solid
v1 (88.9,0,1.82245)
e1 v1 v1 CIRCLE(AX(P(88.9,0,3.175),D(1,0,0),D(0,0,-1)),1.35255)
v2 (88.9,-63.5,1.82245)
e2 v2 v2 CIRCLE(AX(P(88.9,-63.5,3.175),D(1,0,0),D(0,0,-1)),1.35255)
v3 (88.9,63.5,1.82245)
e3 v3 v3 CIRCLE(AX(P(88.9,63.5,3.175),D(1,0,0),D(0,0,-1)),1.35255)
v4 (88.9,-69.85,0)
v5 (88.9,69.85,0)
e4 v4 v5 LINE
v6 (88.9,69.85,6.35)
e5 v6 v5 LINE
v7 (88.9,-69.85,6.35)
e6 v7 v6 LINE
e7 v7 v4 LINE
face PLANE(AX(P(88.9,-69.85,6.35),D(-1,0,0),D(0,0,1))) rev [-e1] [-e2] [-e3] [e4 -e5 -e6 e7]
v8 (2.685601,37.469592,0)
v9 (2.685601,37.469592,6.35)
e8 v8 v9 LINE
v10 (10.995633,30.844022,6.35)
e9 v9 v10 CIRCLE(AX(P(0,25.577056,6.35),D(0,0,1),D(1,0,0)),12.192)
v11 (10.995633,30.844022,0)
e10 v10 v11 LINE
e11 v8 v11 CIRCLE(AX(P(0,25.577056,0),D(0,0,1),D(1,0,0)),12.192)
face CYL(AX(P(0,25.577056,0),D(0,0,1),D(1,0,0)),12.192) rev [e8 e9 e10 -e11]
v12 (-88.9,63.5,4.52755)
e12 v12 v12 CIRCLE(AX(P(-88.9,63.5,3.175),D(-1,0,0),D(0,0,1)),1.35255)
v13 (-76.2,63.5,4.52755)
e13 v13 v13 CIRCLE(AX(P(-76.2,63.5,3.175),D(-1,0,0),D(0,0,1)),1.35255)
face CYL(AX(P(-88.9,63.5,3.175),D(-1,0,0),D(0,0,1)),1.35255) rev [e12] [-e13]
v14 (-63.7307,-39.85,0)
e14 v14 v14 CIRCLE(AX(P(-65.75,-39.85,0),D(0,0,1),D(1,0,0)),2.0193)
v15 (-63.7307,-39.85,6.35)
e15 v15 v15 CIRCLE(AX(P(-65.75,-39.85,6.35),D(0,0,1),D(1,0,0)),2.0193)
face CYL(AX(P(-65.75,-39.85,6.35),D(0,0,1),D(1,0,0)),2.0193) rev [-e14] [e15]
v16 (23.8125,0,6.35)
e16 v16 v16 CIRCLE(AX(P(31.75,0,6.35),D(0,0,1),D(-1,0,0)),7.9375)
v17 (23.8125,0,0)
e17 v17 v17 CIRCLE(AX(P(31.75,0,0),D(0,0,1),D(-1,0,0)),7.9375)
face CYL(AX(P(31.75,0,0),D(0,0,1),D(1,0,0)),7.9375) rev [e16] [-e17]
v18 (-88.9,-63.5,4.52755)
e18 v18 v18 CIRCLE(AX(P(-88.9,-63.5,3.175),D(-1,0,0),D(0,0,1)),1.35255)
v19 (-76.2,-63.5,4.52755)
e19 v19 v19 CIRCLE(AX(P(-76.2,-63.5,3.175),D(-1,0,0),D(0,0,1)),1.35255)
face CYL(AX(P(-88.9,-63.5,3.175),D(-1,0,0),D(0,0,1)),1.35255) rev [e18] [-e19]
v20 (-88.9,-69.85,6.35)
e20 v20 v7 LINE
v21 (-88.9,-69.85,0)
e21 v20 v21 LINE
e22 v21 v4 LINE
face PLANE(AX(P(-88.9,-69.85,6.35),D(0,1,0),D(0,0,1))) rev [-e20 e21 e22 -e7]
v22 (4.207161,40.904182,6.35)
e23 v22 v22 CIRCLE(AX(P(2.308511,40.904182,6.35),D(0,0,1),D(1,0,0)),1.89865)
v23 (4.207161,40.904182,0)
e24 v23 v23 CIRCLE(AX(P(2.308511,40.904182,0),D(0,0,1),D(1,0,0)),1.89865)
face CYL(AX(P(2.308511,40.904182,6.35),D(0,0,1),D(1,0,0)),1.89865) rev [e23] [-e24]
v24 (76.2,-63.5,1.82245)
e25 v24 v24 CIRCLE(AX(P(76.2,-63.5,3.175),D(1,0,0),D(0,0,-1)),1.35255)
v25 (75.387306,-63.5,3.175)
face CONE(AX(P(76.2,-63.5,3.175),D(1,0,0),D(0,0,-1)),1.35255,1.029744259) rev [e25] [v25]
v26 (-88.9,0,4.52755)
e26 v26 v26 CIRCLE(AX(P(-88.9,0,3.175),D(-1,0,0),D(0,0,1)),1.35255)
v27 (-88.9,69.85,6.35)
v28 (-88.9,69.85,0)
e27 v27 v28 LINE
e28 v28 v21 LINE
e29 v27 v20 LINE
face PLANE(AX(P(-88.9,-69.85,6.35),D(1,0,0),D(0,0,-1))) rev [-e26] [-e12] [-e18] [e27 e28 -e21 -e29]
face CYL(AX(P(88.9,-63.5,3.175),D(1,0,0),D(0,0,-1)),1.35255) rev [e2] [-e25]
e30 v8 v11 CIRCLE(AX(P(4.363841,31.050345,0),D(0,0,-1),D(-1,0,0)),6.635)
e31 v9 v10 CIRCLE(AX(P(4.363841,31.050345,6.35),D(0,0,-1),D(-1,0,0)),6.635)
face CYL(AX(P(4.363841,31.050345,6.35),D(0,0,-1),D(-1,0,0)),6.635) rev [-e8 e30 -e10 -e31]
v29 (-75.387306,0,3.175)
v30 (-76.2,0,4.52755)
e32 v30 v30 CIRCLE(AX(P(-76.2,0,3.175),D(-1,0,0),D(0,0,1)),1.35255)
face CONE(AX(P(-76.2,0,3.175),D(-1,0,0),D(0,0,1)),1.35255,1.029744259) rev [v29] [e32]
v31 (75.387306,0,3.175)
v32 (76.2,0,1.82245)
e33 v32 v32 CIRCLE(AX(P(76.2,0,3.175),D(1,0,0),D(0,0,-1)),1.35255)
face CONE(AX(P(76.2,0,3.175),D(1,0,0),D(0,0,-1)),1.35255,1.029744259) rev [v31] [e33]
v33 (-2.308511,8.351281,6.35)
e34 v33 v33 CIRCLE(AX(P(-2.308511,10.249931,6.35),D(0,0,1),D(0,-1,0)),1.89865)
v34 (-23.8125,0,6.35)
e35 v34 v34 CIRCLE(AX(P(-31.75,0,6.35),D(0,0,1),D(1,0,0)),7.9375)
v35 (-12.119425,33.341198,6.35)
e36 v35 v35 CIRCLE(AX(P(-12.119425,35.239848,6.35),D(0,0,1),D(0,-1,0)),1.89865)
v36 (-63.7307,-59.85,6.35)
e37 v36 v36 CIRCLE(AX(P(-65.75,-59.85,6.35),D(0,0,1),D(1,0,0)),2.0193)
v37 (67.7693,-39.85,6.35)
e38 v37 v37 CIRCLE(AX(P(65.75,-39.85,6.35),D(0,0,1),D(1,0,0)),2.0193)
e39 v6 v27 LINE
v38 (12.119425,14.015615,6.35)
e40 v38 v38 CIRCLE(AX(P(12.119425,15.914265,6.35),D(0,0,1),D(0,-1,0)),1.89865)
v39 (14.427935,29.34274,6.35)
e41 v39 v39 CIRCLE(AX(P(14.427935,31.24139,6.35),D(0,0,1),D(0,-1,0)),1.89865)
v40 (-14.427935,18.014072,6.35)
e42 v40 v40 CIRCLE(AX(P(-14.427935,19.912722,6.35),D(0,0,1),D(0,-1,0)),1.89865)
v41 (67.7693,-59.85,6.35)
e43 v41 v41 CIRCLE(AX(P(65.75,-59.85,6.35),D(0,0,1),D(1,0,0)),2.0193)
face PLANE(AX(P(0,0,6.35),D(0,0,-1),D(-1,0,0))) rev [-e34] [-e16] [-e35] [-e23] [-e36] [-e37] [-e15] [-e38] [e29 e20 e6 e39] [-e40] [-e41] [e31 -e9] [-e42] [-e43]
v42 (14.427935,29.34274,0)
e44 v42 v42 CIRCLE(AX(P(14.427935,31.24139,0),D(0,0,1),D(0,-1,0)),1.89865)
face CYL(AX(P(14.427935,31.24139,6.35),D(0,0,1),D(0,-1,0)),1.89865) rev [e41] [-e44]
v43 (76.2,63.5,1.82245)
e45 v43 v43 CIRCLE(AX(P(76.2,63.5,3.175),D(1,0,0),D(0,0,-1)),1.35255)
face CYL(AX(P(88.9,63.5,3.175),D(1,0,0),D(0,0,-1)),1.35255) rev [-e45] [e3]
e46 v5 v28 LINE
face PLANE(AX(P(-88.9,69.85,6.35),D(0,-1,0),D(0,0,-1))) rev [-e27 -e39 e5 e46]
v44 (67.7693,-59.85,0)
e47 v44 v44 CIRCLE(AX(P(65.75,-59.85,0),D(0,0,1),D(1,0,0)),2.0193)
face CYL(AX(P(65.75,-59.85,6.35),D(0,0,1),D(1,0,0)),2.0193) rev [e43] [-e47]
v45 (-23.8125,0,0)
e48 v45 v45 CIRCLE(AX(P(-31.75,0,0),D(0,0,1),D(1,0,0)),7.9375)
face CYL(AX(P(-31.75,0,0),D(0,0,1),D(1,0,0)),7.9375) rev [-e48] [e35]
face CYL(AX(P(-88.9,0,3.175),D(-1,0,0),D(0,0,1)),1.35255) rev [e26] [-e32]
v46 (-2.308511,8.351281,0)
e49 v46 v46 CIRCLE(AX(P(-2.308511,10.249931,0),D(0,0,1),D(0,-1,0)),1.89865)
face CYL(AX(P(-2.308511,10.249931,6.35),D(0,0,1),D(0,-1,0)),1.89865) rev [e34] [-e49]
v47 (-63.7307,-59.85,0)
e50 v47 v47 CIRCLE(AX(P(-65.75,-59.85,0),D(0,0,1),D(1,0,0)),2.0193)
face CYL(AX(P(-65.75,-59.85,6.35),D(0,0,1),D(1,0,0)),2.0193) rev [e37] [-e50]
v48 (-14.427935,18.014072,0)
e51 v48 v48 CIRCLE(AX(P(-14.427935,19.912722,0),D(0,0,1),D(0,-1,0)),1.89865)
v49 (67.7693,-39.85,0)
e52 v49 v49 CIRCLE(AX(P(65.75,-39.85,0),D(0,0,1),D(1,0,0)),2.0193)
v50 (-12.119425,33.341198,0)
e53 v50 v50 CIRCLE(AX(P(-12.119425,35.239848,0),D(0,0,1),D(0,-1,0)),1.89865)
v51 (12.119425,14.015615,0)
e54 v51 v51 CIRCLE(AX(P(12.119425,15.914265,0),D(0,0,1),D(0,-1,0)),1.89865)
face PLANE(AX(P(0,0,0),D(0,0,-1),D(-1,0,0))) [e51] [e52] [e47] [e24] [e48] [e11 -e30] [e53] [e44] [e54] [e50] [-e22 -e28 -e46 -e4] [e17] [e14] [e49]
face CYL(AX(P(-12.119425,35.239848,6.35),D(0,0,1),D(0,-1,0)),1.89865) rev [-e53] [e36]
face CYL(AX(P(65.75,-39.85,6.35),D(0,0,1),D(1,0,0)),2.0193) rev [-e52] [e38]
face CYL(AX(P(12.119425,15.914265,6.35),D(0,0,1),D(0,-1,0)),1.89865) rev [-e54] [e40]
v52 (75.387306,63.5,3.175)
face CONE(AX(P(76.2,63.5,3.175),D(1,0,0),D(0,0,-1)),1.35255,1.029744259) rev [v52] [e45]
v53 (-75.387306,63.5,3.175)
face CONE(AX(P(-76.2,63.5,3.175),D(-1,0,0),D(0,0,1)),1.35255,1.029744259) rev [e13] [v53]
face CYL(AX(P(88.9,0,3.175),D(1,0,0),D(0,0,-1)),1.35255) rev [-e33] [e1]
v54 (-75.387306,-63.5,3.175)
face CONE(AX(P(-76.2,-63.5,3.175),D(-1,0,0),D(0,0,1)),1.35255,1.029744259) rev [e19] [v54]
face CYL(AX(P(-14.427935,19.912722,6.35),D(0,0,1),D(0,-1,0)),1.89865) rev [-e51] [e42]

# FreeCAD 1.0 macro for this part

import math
import FreeCAD as App
import Part
import Sketcher
from FreeCAD import Vector
Q = App.Units.Quantity

doc = App.newDocument("Part")
params = doc.addObject("Spreadsheet::Sheet", "Params")
for row, (alias, value) in enumerate([
    ("sketch1_width", "7 in"),
    ("sketch1_height", "5.5 in"),
    ("pad1_length", "0.25 in"),
    ("sketch2_diameter", "0.625 in"),
    ("sketch3_width", "0.5 in"),
    ("groove_angle", "360 deg"),
    ("linearpattern_pitch", "2.5 in"),
    ("linearpattern2_pitch", "5 in"),
    ("sketch4_width", "0.5 in"),
    ("groove2_angle", "360 deg"),
    ("sketch5_width", "0.5 in"),
    ("groove3_angle", "360 deg"),
    ("sketch6_diameter", "0.159 in"),
    ("hole_diameter", "0.159 in"),
    ("sketch7_diameter", "0.96 in"),
    ("hole2_diameter", "0.1495 in"),
], start=1):
    params.set(f"A{row}", alias)
    params.set(f"B{row}", "=" + value)
    params.setAlias(f"B{row}", alias)

body = doc.addObject("PartDesign::Body", "Body")

sketch1 = body.newObject("Sketcher::SketchObject", "Sketch")
sketch1.AttachmentSupport = (doc.getObject("XY_Plane"), [""])
sketch1.MapMode = "FlatFace"
sketch1.addGeometry([
    Part.LineSegment(Vector(-89, 70, 0), Vector(-89, -70, 0)),
    Part.LineSegment(Vector(-89, -70, 0), Vector(89, -70, 0)),
    Part.LineSegment(Vector(89, -70, 0), Vector(89, 70, 0)),
    Part.LineSegment(Vector(89, 70, 0), Vector(-89, 70, 0)),
], False)
sketch1.addConstraint([
    Sketcher.Constraint("Coincident", 0, 2, 1, 1),
    Sketcher.Constraint("Coincident", 1, 2, 2, 1),
    Sketcher.Constraint("Coincident", 2, 2, 3, 1),
    Sketcher.Constraint("Coincident", 3, 2, 0, 1),
    Sketcher.Constraint("Vertical", 0),
    Sketcher.Constraint("Horizontal", 1),
    Sketcher.Constraint("Vertical", 2),
    Sketcher.Constraint("Horizontal", 3),
    Sketcher.Constraint("Symmetric", 0, 2, 2, 2, -1, 1),
    Sketcher.Constraint("DistanceX", 1, 1, 1, 2, Q("7 in")),
    Sketcher.Constraint("DistanceY", 0, 2, 0, 1, Q("5.5 in")),
])
sketch1.setExpression("Constraints[9]", "Params.sketch1_width")
sketch1.setExpression("Constraints[10]", "Params.sketch1_height")
pad1 = body.newObject("PartDesign::Pad", "Pad")
pad1.Profile = sketch1
pad1.setExpression("Length", "Params.pad1_length")

sketch2 = body.newObject("Sketcher::SketchObject", "Sketch001")
sketch2.AttachmentSupport = (doc.getObject("XY_Plane"), [""])
sketch2.MapMode = "FlatFace"
sketch2.AttachmentOffset = App.Placement(Vector(0, 0, 0.25 * 25.4), App.Rotation())
sketch2.addGeometry([
    Part.Circle(Vector(-32, 0, 0), Vector(0, 0, 1), 8),
    Part.Circle(Vector(32, 0, 0), Vector(0, 0, 1), 8),
], False)
sketch2.addConstraint([
    Sketcher.Constraint("Equal", 0, 1),
    Sketcher.Constraint("Symmetric", 0, 3, 1, 3, -1, 1),
    Sketcher.Constraint("PointOnObject", 0, 3, -1),
    Sketcher.Constraint("Diameter", 0, Q("0.625 in")),
    Sketcher.Constraint("DistanceX", 0, 3, 1, 3, Q("2.5 in")),
])
sketch2.setExpression("Constraints[3]", "Params.sketch2_diameter")
pocket1 = body.newObject("PartDesign::Pocket", "Pocket")
pocket1.Profile = sketch2
pocket1.Type = "ThroughAll"

sketch3 = body.newObject("Sketcher::SketchObject", "Sketch002")
sketch3.AttachmentSupport = (doc.getObject("XZ_Plane"), [""])
sketch3.MapMode = "FlatFace"
sketch3.AttachmentOffset = App.Placement(Vector(0, 0, -2.5 * 25.4), App.Rotation())
sketch3.addGeometry([
    Part.LineSegment(Vector(75.4, 3.2, 0), Vector(88.9, 3.2, 0)),
    Part.LineSegment(Vector(88.9, 3.2, 0), Vector(88.9, 1.8, 0)),
    Part.LineSegment(Vector(88.9, 1.8, 0), Vector(76.2, 1.8, 0)),
    Part.LineSegment(Vector(76.2, 1.8, 0), Vector(75.4, 3.2, 0)),
], False)
sketch3.addGeometry(Part.LineSegment(Vector(88.9, 3.2, 0), Vector(75.4, 3.2, 0)), True)
sketch3.addConstraint([
    Sketcher.Constraint("Coincident", 0, 2, 1, 1),
    Sketcher.Constraint("Coincident", 1, 2, 2, 1),
    Sketcher.Constraint("Coincident", 2, 2, 3, 1),
    Sketcher.Constraint("Coincident", 3, 2, 0, 1),
    Sketcher.Constraint("Horizontal", 0),
    Sketcher.Constraint("Vertical", 1),
    Sketcher.Constraint("Horizontal", 2),
    Sketcher.Constraint("Horizontal", 4),
    Sketcher.Constraint("Coincident", 4, 1, 0, 2),
    Sketcher.Constraint("Equal", 0, 4),
    Sketcher.Constraint("DistanceX", 2, 2, 2, 1, Q("0.5 in")),
    Sketcher.Constraint("DistanceX", -1, 1, 2, 2, Q("3 in")),
    Sketcher.Constraint("Angle", 3, Q("121 deg")),
    Sketcher.Constraint("DistanceY", -1, 1, 0, 2, Q("0.125 in")),
    Sketcher.Constraint("DistanceY", 1, 2, 1, 1, Q("1.35255 mm")),
])
sketch3.setExpression("Constraints[10]", "Params.sketch3_width")
groove = body.newObject("PartDesign::Groove", "Groove")
groove.Profile = sketch3
groove.ReferenceAxis = (sketch3, ["Axis0"])
groove.setExpression("Angle", "Params.groove_angle")
doc.recompute()

linearpattern = body.newObject("PartDesign::LinearPattern", "LinearPattern")
linearpattern.Originals = [groove]
linearpattern.Direction = (doc.getObject("Y_Axis"), [""])
linearpattern.Mode = "offset"
linearpattern.setExpression("Offset", "Params.linearpattern_pitch")
linearpattern.Occurrences = 2
linearpattern.Reversed = True
body.Tip = linearpattern
doc.recompute()

linearpattern2 = body.newObject("PartDesign::LinearPattern", "LinearPattern001")
linearpattern2.Originals = [groove]
linearpattern2.Direction = (doc.getObject("Y_Axis"), [""])
linearpattern2.Mode = "offset"
linearpattern2.setExpression("Offset", "Params.linearpattern2_pitch")
linearpattern2.Occurrences = 2
linearpattern2.Reversed = True
body.Tip = linearpattern2
doc.recompute()

mirrored = body.newObject("PartDesign::Mirrored", "Mirrored")
mirrored.Originals = [groove]
mirrored.MirrorPlane = (doc.getObject("YZ_Plane"), [""])
body.Tip = mirrored

sketch4 = body.newObject("Sketcher::SketchObject", "Sketch003")
sketch4.AttachmentSupport = (doc.getObject("XZ_Plane"), [""])
sketch4.MapMode = "FlatFace"
sketch4.addGeometry([
    Part.LineSegment(Vector(-88.9, 3.2, 0), Vector(-75.4, 3.2, 0)),
    Part.LineSegment(Vector(-75.4, 3.2, 0), Vector(-76.2, 1.8, 0)),
    Part.LineSegment(Vector(-76.2, 1.8, 0), Vector(-88.9, 1.8, 0)),
    Part.LineSegment(Vector(-88.9, 1.8, 0), Vector(-88.9, 3.2, 0)),
], False)
sketch4.addGeometry(Part.LineSegment(Vector(-75.4, 3.2, 0), Vector(-88.9, 3.2, 0)), True)
sketch4.addConstraint([
    Sketcher.Constraint("Coincident", 0, 2, 1, 1),
    Sketcher.Constraint("Coincident", 1, 2, 2, 1),
    Sketcher.Constraint("Coincident", 2, 2, 3, 1),
    Sketcher.Constraint("Coincident", 3, 2, 0, 1),
    Sketcher.Constraint("Horizontal", 0),
    Sketcher.Constraint("Horizontal", 2),
    Sketcher.Constraint("Vertical", 3),
    Sketcher.Constraint("Horizontal", 4),
    Sketcher.Constraint("Coincident", 4, 1, 0, 2),
    Sketcher.Constraint("Vertical", 2, 2, 4, 2),
    Sketcher.Constraint("DistanceX", 2, 2, 2, 1, Q("0.5 in")),
    Sketcher.Constraint("DistanceX", 1, 2, -1, 1, Q("3 in")),
    Sketcher.Constraint("Angle", 1, Q("-121 deg")),
    Sketcher.Constraint("DistanceY", -1, 1, 0, 2, Q("0.125 in")),
    Sketcher.Constraint("DistanceY", 3, 1, 3, 2, Q("1.35255 mm")),
])
sketch4.setExpression("Constraints[10]", "Params.sketch4_width")
groove2 = body.newObject("PartDesign::Groove", "Groove001")
groove2.Profile = sketch4
groove2.ReferenceAxis = (sketch4, ["Axis0"])
groove2.setExpression("Angle", "Params.groove2_angle")

sketch5 = body.newObject("Sketcher::SketchObject", "Sketch004")
sketch5.AttachmentSupport = (doc.getObject("XZ_Plane"), [""])
sketch5.MapMode = "FlatFace"
sketch5.AttachmentOffset = App.Placement(Vector(0, 0, 2.5 * 25.4), App.Rotation())
sketch5.addGeometry([
    Part.LineSegment(Vector(-88.9, 3.2, 0), Vector(-75.4, 3.2, 0)),
    Part.LineSegment(Vector(-75.4, 3.2, 0), Vector(-76.2, 1.8, 0)),
    Part.LineSegment(Vector(-76.2, 1.8, 0), Vector(-88.9, 1.8, 0)),
    Part.LineSegment(Vector(-88.9, 1.8, 0), Vector(-88.9, 3.2, 0)),
], False)
sketch5.addGeometry(Part.LineSegment(Vector(-75.4, 3.2, 0), Vector(-88.9, 3.2, 0)), True)
sketch5.addConstraint([
    Sketcher.Constraint("Coincident", 0, 2, 1, 1),
    Sketcher.Constraint("Coincident", 1, 2, 2, 1),
    Sketcher.Constraint("Coincident", 2, 2, 3, 1),
    Sketcher.Constraint("Coincident", 3, 2, 0, 1),
    Sketcher.Constraint("Horizontal", 0),
    Sketcher.Constraint("Horizontal", 2),
    Sketcher.Constraint("Vertical", 3),
    Sketcher.Constraint("Horizontal", 4),
    Sketcher.Constraint("Coincident", 4, 1, 0, 2),
    Sketcher.Constraint("Vertical", 2, 2, 4, 2),
    Sketcher.Constraint("DistanceX", 2, 2, 2, 1, Q("0.5 in")),
    Sketcher.Constraint("DistanceX", 1, 2, -1, 1, Q("3 in")),
    Sketcher.Constraint("Angle", 1, Q("-121 deg")),
    Sketcher.Constraint("DistanceY", -1, 1, 0, 2, Q("0.125 in")),
    Sketcher.Constraint("DistanceY", 3, 1, 3, 2, Q("1.35255 mm")),
])
sketch5.setExpression("Constraints[10]", "Params.sketch5_width")
groove3 = body.newObject("PartDesign::Groove", "Groove002")
groove3.Profile = sketch5
groove3.ReferenceAxis = (sketch5, ["Axis0"])
groove3.setExpression("Angle", "Params.groove3_angle")

sketch6 = body.newObject("Sketcher::SketchObject", "Sketch005")
sketch6.AttachmentSupport = (doc.getObject("XY_Plane"), [""])
sketch6.MapMode = "FlatFace"
sketch6.AttachmentOffset = App.Placement(Vector(0, 0, 0.25 * 25.4), App.Rotation())
sketch6.addGeometry([
    Part.Circle(Vector(-65.8, -59.9, 0), Vector(0, 0, 1), 2),
    Part.Circle(Vector(-65.8, -39.9, 0), Vector(0, 0, 1), 2),
], False)
sketch6.addConstraint([
    Sketcher.Constraint("Equal", 0, 1),
    Sketcher.Constraint("Vertical", 0, 3, 1, 3),
    Sketcher.Constraint("Diameter", 0, Q("0.159 in")),
    Sketcher.Constraint("DistanceX", 0, 3, -1, 1, Q("65.75 mm")),
    Sketcher.Constraint("DistanceY", 0, 3, -1, 1, Q("59.85 mm")),
    Sketcher.Constraint("DistanceY", 1, 3, -1, 1, Q("39.85 mm")),
])
sketch6.setExpression("Constraints[2]", "Params.sketch6_diameter")
doc.recompute()
hole = body.newObject("PartDesign::Hole", "Hole")
hole.Profile = sketch6
hole.ThreadType = "None"
hole.setExpression("Diameter", "Params.hole_diameter")
hole.DepthType = "ThroughAll"
doc.recompute()

mirrored2 = body.newObject("PartDesign::Mirrored", "Mirrored001")
mirrored2.Originals = [hole]
mirrored2.MirrorPlane = (doc.getObject("YZ_Plane"), [""])
body.Tip = mirrored2

sketch7 = body.newObject("Sketcher::SketchObject", "Sketch006")
sketch7.AttachmentSupport = (doc.getObject("XY_Plane"), [""])
sketch7.MapMode = "FlatFace"
sketch7.AttachmentOffset = App.Placement(Vector(0, 0, 0.25 * 25.4), App.Rotation())
sketch7.addGeometry(Part.Circle(Vector(0, 26, 0), Vector(0, 0, 1), 12), False)
sketch7.addConstraint([
    Sketcher.Constraint("PointOnObject", 0, 3, -2),
    Sketcher.Constraint("Diameter", 0, Q("0.96 in")),
    Sketcher.Constraint("DistanceY", -1, 1, 0, 3, Q("25.577056 mm")),
])
sketch7.setExpression("Constraints[1]", "Params.sketch7_diameter")
pocket2 = body.newObject("PartDesign::Pocket", "Pocket001")
pocket2.Profile = sketch7
pocket2.Type = "ThroughAll"

sketch8 = body.newObject("Sketcher::SketchObject", "Sketch007")
sketch8.AttachmentSupport = (doc.getObject("XY_Plane"), [""])
sketch8.MapMode = "FlatFace"
sketch8.AttachmentOffset = App.Placement(Vector(0, 0, 0.25 * 25.4), App.Rotation())
sketch8.addGeometry(Part.Circle(Vector(2.3, 40.9, 0), Vector(0, 0, 1), 1.9), False)
sketch8.addConstraint([
    Sketcher.Constraint("Diameter", 0, Q("0.1495 in")),
    Sketcher.Constraint("DistanceX", -1, 1, 0, 3, Q("2.308511 mm")),
    Sketcher.Constraint("DistanceY", -1, 1, 0, 3, Q("40.904182 mm")),
])
doc.recompute()
hole2 = body.newObject("PartDesign::Hole", "Hole001")
hole2.Profile = sketch8
hole2.ThreadType = "None"
hole2.setExpression("Diameter", "Params.hole2_diameter")
hole2.DepthType = "ThroughAll"
doc.recompute()

datumline = body.newObject("PartDesign::Line", "DatumLine")
datumline.Placement = App.Placement(Vector(0, 25.577056, 0), App.Rotation(Vector(0, 0, 1), Vector(0, 0, 1)))
polarpattern = body.newObject("PartDesign::PolarPattern", "PolarPattern")
polarpattern.Originals = [hole2]
polarpattern.Axis = (datumline, [""])
polarpattern.Angle = 360
polarpattern.Occurrences = 6
body.Tip = polarpattern

sketch9 = body.newObject("Sketcher::SketchObject", "Sketch008")
sketch9.AttachmentSupport = (doc.getObject("XY_Plane"), [""])
sketch9.MapMode = "FlatFace"
sketch9.addGeometry([
    Part.ArcOfCircle(Part.Circle(Vector(4, 31, 0), Vector(0, 0, 1), 7), math.radians(-39), math.radians(141)),
    Part.ArcOfCircle(Part.Circle(Vector(4, 31, 0), Vector(0, 0, 1), 7), math.radians(141), math.radians(321)),
], False)
sketch9.addConstraint([
    Sketcher.Constraint("Tangent", 0, 1, 1, 2),
    Sketcher.Constraint("Coincident", 1, 1, 0, 2),
    Sketcher.Constraint("Radius", 0, Q("6.635 mm")),
    Sketcher.Constraint("DistanceY", 0, 1, 1, 3, Q("4.136298 mm")),
    Sketcher.Constraint("DistanceY", 0, 3, 1, 1, Q("4.136298 mm")),
    Sketcher.Constraint("DistanceX", -1, 1, 0, 3, Q("4.363841 mm")),
    Sketcher.Constraint("DistanceY", -1, 1, 0, 3, Q("31.050345 mm")),
])
pocket3 = body.newObject("PartDesign::Pocket", "Pocket002")
pocket3.Profile = sketch9
pocket3.Type = "ThroughAll"
pocket3.Reversed = True

doc.recompute()
